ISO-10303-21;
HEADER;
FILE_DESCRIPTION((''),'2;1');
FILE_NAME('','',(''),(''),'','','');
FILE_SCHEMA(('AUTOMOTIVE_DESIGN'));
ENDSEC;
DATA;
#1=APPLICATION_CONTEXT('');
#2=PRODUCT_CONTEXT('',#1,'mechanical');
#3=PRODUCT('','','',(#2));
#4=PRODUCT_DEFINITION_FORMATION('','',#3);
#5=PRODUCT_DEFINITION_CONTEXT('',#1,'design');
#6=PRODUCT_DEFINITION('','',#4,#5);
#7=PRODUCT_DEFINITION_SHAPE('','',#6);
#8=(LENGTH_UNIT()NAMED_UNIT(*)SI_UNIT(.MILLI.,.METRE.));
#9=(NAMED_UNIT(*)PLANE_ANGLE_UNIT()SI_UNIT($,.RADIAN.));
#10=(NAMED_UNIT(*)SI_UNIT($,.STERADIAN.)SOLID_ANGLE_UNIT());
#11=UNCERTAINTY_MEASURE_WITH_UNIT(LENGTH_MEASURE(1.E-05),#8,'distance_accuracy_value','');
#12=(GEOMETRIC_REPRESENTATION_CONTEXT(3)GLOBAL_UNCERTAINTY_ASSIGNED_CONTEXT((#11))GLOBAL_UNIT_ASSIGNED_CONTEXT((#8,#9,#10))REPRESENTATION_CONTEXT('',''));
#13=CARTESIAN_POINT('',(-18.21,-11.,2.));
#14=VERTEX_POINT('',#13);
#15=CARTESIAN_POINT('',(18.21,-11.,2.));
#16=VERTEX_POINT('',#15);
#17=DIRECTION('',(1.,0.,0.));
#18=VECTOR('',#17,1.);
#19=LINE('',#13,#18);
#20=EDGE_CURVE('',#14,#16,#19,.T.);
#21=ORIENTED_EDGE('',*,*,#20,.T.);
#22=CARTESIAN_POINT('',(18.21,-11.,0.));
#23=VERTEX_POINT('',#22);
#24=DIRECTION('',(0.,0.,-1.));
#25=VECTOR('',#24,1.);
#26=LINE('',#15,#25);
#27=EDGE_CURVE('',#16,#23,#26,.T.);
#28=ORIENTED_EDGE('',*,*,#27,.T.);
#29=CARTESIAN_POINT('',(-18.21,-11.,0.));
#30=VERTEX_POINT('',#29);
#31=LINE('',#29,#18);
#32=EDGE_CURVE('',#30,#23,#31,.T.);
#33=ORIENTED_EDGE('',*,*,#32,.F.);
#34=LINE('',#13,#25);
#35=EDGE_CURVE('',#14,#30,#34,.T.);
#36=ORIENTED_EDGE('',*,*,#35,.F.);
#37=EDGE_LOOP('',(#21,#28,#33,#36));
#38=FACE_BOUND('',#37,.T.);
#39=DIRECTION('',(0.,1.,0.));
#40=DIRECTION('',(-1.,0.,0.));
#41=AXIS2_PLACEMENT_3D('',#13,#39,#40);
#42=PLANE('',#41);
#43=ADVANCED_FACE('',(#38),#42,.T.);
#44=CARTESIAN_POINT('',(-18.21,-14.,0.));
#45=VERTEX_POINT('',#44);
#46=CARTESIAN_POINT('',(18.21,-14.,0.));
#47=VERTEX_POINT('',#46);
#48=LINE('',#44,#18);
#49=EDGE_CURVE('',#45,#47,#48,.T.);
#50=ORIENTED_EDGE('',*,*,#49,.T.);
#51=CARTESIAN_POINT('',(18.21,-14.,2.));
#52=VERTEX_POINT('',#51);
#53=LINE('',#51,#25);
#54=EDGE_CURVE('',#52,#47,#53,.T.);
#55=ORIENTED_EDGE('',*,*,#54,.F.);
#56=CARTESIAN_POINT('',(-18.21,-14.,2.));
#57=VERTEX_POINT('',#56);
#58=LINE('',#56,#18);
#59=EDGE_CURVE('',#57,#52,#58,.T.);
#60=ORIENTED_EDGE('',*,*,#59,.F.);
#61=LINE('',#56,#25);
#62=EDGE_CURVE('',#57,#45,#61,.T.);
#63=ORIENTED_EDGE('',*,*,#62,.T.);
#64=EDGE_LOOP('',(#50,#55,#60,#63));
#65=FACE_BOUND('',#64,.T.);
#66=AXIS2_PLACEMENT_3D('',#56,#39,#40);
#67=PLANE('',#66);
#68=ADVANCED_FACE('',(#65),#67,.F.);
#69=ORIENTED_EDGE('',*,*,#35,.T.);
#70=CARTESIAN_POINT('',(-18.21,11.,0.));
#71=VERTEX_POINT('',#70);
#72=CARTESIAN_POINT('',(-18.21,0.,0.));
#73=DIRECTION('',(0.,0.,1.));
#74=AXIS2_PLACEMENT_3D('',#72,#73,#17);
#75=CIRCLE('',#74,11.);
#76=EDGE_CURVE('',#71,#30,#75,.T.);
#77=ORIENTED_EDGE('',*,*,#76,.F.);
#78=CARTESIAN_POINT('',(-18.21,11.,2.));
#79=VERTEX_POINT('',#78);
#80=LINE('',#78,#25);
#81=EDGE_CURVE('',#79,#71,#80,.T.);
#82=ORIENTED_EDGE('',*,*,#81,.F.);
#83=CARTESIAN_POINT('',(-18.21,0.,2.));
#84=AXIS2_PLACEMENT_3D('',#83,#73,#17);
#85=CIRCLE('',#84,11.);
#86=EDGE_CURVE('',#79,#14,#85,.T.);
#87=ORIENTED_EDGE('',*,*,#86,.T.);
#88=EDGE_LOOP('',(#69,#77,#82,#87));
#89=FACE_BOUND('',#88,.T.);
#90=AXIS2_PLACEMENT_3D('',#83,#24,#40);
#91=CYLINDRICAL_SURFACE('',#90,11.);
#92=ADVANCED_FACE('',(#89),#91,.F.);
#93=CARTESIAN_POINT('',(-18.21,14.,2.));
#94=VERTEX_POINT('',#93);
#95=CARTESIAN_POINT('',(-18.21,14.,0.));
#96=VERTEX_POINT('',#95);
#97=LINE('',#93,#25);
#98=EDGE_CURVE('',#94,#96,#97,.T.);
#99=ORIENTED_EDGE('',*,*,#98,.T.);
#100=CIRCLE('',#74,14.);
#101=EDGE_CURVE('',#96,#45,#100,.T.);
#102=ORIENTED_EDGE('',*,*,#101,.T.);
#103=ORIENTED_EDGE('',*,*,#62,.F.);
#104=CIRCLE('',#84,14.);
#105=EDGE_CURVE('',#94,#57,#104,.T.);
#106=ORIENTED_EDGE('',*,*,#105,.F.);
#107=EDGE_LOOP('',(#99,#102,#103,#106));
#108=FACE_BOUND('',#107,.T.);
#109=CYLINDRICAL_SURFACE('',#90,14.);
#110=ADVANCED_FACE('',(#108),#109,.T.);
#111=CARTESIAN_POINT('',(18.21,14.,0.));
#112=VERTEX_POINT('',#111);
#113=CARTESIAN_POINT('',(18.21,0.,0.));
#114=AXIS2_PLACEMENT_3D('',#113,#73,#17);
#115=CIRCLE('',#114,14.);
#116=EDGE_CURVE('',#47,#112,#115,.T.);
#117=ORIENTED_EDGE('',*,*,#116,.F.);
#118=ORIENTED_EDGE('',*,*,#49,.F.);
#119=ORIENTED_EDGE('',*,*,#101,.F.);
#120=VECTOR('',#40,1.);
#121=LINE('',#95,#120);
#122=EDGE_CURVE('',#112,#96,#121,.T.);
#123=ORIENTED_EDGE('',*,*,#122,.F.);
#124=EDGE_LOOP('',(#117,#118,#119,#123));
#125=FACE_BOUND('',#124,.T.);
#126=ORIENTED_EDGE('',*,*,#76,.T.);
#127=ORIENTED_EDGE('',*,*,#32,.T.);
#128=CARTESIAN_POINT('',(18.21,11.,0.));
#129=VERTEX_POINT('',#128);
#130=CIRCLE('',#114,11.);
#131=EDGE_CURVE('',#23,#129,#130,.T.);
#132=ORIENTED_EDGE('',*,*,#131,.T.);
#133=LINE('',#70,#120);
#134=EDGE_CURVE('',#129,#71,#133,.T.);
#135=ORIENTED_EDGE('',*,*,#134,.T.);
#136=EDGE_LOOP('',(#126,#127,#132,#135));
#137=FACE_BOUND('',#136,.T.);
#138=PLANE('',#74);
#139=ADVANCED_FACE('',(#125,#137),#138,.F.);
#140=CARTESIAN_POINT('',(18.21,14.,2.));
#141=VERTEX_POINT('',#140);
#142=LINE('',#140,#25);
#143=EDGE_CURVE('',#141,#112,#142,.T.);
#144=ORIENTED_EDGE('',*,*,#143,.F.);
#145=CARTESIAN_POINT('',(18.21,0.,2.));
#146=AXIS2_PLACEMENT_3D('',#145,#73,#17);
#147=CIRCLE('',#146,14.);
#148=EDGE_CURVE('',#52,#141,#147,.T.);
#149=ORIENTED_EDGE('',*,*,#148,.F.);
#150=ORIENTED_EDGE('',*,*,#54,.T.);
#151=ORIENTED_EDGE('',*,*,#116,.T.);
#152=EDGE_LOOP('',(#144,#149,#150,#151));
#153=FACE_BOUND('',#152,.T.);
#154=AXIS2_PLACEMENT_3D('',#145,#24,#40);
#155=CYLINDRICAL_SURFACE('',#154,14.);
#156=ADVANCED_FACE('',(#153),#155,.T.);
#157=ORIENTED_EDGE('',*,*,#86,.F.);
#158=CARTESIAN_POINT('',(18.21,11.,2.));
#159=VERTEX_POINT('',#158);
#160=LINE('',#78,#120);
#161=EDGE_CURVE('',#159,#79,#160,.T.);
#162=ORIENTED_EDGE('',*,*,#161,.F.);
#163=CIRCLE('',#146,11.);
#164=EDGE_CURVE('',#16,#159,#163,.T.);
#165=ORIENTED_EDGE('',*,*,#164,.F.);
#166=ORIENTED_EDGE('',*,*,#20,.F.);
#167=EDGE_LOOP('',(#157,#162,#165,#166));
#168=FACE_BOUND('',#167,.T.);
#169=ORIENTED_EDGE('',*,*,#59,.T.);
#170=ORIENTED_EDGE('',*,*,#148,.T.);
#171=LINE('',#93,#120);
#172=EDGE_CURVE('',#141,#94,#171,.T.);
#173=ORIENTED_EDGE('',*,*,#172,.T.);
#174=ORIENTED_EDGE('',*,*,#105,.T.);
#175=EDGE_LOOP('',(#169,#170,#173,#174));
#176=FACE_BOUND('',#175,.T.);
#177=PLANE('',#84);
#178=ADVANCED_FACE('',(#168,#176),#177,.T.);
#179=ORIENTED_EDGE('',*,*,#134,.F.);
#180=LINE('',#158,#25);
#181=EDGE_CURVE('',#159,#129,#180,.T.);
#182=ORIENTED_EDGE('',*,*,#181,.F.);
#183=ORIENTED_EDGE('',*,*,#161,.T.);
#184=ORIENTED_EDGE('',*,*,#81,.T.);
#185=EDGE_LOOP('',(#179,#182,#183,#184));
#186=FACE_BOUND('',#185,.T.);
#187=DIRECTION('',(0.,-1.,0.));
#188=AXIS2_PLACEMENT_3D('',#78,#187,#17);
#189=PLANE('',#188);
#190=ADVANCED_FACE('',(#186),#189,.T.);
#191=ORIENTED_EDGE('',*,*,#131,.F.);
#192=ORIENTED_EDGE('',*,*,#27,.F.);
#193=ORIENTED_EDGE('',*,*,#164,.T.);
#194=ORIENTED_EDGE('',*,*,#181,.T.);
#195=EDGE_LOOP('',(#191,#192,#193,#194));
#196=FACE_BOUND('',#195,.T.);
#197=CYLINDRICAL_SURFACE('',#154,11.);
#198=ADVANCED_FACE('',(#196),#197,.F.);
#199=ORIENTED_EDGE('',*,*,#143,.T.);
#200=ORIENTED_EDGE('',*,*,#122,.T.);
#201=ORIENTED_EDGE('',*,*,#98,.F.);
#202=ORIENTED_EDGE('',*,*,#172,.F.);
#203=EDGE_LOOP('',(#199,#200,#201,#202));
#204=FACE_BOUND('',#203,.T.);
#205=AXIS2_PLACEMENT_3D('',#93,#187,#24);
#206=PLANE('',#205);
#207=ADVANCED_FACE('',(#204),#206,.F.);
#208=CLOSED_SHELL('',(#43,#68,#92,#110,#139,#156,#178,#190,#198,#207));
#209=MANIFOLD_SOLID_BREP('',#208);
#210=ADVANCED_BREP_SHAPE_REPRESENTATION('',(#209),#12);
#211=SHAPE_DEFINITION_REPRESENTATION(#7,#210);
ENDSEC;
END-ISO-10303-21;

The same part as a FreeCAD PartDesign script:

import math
import FreeCAD as App
import Part
import Sketcher

doc = App.newDocument("Part")
body = doc.addObject("PartDesign::Body", "Body")

# Sketch on XY plane
sketch1 = body.newObject("Sketcher::SketchObject", "Sketch")
sketch1.AttachmentSupport = (doc.getObject("XY_Plane"), [""])
sketch1.MapMode = "FlatFace"
sketch1.addGeometry([
    Part.LineSegment(App.Vector(18, 14, 0), App.Vector(-18, 14, 0)),  # 0
    Part.ArcOfCircle(Part.Circle(App.Vector(-18, 0, 0), App.Vector(0, 0, 1), 14), math.radians(90), math.radians(270)),  # 1
    Part.LineSegment(App.Vector(-18, -14, 0), App.Vector(18, -14, 0)),  # 2
    Part.ArcOfCircle(Part.Circle(App.Vector(18, 0, 0), App.Vector(0, 0, 1), 14), math.radians(-90), math.radians(90)),  # 3
    Part.LineSegment(App.Vector(-18, 11, 0), App.Vector(18, 11, 0)),  # 4
    Part.ArcOfCircle(Part.Circle(App.Vector(18, 0, 0), App.Vector(0, 0, 1), 11), math.radians(-90), math.radians(90)),  # 5
    Part.LineSegment(App.Vector(18, -11, 0), App.Vector(-18, -11, 0)),  # 6
    Part.ArcOfCircle(Part.Circle(App.Vector(-18, 0, 0), App.Vector(0, 0, 1), 11), math.radians(90), math.radians(270)),  # 7
], False)
sketch1.addConstraint([
    Sketcher.Constraint("Tangent", 0, 2, 1, 1),
    Sketcher.Constraint("Tangent", 1, 2, 2, 1),
    Sketcher.Constraint("Tangent", 2, 2, 3, 1),
    Sketcher.Constraint("Tangent", 3, 2, 0, 1),
    Sketcher.Constraint("Tangent", 4, 2, 5, 2),
    Sketcher.Constraint("Tangent", 5, 1, 6, 1),
    Sketcher.Constraint("Tangent", 6, 2, 7, 2),
    Sketcher.Constraint("Tangent", 7, 1, 4, 1),
    Sketcher.Constraint("Horizontal", 0),
    Sketcher.Constraint("Horizontal", 2),
    Sketcher.Constraint("Horizontal", 4),
    Sketcher.Constraint("Horizontal", 6),
    Sketcher.Constraint("Coincident", 5, 3, 3, 3),
    Sketcher.Constraint("Symmetric", 1, 3, 3, 3, -1, 1),
    Sketcher.Constraint("Vertical", 7, 3, 0, 2),
    Sketcher.Constraint("Radius", 1, 14.0),
    Sketcher.Constraint("Radius", 5, 11.0),
    Sketcher.Constraint("DistanceX", 0, 2, 0, 1, 36.42),
])
pad1 = body.newObject("PartDesign::Pad", "Pad")
pad1.Profile = sketch1
pad1.Length = 2

doc.recompute()
